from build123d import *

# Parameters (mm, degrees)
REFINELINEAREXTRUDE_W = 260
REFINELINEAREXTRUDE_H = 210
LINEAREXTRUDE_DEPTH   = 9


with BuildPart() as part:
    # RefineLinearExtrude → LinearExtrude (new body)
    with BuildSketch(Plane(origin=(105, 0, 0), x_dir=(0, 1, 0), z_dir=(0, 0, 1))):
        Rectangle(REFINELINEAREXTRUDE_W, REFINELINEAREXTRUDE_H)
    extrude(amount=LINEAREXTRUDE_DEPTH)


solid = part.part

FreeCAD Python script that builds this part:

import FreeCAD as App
import Part
import Sketcher

V = App.Vector


def add_polygon(sketch, points):
    """Adds a closed chain of lines whose ends are joined by coincident constraints."""
    first, n = sketch.GeometryCount, len(points)
    for a, b in zip(points, points[1:] + points[:1]):
        sketch.addGeometry(Part.LineSegment(App.Vector(*a, 0), App.Vector(*b, 0)), False)
    for i in range(n):
        sketch.addConstraint(Sketcher.Constraint("Coincident", first + i, 2, first + (i + 1) % n, 1))

doc = App.newDocument("Part")
params = doc.addObject("Spreadsheet::Sheet", "Params")
for row, (alias, value) in enumerate([
    ("sketch1_width", "210 mm"),
    ("sketch1_height", "260 mm"),
    ("pad1_length", "9 mm"),
], start=1):
    params.set(f"A{row}", alias)
    params.set(f"B{row}", "=" + value)
    params.setAlias(f"B{row}", alias)

body = doc.addObject("PartDesign::Body", "Body")

# Sketch on XY plane
sketch1 = body.newObject("Sketcher::SketchObject", "Sketch")
sketch1.AttachmentSupport = (doc.getObject("XY_Plane"), [""])
sketch1.MapMode = "FlatFace"
add_polygon(sketch1, [(0, -130), (210, -130), (210, 130), (0, 130)])  # lines 0-3
sketch1.addConstraint([
    Sketcher.Constraint("Horizontal", 0),
    Sketcher.Constraint("Vertical", 1),
    Sketcher.Constraint("Horizontal", 2),
    Sketcher.Constraint("Vertical", 3),
    Sketcher.Constraint("Symmetric", 2, 2, 3, 2, -1, 1),
    Sketcher.Constraint("DistanceX", 0, 1, 0, 2, 210.0),
    Sketcher.Constraint("DistanceY", 1, 1, 1, 2, 260.0),
])
sketch1.setExpression("Constraints[9]", "Params.sketch1_width")
sketch1.setExpression("Constraints[10]", "Params.sketch1_height")
pad1 = body.newObject("PartDesign::Pad", "Pad")
pad1.Profile = sketch1
pad1.setExpression("Length", "Params.pad1_length")

doc.recompute()
